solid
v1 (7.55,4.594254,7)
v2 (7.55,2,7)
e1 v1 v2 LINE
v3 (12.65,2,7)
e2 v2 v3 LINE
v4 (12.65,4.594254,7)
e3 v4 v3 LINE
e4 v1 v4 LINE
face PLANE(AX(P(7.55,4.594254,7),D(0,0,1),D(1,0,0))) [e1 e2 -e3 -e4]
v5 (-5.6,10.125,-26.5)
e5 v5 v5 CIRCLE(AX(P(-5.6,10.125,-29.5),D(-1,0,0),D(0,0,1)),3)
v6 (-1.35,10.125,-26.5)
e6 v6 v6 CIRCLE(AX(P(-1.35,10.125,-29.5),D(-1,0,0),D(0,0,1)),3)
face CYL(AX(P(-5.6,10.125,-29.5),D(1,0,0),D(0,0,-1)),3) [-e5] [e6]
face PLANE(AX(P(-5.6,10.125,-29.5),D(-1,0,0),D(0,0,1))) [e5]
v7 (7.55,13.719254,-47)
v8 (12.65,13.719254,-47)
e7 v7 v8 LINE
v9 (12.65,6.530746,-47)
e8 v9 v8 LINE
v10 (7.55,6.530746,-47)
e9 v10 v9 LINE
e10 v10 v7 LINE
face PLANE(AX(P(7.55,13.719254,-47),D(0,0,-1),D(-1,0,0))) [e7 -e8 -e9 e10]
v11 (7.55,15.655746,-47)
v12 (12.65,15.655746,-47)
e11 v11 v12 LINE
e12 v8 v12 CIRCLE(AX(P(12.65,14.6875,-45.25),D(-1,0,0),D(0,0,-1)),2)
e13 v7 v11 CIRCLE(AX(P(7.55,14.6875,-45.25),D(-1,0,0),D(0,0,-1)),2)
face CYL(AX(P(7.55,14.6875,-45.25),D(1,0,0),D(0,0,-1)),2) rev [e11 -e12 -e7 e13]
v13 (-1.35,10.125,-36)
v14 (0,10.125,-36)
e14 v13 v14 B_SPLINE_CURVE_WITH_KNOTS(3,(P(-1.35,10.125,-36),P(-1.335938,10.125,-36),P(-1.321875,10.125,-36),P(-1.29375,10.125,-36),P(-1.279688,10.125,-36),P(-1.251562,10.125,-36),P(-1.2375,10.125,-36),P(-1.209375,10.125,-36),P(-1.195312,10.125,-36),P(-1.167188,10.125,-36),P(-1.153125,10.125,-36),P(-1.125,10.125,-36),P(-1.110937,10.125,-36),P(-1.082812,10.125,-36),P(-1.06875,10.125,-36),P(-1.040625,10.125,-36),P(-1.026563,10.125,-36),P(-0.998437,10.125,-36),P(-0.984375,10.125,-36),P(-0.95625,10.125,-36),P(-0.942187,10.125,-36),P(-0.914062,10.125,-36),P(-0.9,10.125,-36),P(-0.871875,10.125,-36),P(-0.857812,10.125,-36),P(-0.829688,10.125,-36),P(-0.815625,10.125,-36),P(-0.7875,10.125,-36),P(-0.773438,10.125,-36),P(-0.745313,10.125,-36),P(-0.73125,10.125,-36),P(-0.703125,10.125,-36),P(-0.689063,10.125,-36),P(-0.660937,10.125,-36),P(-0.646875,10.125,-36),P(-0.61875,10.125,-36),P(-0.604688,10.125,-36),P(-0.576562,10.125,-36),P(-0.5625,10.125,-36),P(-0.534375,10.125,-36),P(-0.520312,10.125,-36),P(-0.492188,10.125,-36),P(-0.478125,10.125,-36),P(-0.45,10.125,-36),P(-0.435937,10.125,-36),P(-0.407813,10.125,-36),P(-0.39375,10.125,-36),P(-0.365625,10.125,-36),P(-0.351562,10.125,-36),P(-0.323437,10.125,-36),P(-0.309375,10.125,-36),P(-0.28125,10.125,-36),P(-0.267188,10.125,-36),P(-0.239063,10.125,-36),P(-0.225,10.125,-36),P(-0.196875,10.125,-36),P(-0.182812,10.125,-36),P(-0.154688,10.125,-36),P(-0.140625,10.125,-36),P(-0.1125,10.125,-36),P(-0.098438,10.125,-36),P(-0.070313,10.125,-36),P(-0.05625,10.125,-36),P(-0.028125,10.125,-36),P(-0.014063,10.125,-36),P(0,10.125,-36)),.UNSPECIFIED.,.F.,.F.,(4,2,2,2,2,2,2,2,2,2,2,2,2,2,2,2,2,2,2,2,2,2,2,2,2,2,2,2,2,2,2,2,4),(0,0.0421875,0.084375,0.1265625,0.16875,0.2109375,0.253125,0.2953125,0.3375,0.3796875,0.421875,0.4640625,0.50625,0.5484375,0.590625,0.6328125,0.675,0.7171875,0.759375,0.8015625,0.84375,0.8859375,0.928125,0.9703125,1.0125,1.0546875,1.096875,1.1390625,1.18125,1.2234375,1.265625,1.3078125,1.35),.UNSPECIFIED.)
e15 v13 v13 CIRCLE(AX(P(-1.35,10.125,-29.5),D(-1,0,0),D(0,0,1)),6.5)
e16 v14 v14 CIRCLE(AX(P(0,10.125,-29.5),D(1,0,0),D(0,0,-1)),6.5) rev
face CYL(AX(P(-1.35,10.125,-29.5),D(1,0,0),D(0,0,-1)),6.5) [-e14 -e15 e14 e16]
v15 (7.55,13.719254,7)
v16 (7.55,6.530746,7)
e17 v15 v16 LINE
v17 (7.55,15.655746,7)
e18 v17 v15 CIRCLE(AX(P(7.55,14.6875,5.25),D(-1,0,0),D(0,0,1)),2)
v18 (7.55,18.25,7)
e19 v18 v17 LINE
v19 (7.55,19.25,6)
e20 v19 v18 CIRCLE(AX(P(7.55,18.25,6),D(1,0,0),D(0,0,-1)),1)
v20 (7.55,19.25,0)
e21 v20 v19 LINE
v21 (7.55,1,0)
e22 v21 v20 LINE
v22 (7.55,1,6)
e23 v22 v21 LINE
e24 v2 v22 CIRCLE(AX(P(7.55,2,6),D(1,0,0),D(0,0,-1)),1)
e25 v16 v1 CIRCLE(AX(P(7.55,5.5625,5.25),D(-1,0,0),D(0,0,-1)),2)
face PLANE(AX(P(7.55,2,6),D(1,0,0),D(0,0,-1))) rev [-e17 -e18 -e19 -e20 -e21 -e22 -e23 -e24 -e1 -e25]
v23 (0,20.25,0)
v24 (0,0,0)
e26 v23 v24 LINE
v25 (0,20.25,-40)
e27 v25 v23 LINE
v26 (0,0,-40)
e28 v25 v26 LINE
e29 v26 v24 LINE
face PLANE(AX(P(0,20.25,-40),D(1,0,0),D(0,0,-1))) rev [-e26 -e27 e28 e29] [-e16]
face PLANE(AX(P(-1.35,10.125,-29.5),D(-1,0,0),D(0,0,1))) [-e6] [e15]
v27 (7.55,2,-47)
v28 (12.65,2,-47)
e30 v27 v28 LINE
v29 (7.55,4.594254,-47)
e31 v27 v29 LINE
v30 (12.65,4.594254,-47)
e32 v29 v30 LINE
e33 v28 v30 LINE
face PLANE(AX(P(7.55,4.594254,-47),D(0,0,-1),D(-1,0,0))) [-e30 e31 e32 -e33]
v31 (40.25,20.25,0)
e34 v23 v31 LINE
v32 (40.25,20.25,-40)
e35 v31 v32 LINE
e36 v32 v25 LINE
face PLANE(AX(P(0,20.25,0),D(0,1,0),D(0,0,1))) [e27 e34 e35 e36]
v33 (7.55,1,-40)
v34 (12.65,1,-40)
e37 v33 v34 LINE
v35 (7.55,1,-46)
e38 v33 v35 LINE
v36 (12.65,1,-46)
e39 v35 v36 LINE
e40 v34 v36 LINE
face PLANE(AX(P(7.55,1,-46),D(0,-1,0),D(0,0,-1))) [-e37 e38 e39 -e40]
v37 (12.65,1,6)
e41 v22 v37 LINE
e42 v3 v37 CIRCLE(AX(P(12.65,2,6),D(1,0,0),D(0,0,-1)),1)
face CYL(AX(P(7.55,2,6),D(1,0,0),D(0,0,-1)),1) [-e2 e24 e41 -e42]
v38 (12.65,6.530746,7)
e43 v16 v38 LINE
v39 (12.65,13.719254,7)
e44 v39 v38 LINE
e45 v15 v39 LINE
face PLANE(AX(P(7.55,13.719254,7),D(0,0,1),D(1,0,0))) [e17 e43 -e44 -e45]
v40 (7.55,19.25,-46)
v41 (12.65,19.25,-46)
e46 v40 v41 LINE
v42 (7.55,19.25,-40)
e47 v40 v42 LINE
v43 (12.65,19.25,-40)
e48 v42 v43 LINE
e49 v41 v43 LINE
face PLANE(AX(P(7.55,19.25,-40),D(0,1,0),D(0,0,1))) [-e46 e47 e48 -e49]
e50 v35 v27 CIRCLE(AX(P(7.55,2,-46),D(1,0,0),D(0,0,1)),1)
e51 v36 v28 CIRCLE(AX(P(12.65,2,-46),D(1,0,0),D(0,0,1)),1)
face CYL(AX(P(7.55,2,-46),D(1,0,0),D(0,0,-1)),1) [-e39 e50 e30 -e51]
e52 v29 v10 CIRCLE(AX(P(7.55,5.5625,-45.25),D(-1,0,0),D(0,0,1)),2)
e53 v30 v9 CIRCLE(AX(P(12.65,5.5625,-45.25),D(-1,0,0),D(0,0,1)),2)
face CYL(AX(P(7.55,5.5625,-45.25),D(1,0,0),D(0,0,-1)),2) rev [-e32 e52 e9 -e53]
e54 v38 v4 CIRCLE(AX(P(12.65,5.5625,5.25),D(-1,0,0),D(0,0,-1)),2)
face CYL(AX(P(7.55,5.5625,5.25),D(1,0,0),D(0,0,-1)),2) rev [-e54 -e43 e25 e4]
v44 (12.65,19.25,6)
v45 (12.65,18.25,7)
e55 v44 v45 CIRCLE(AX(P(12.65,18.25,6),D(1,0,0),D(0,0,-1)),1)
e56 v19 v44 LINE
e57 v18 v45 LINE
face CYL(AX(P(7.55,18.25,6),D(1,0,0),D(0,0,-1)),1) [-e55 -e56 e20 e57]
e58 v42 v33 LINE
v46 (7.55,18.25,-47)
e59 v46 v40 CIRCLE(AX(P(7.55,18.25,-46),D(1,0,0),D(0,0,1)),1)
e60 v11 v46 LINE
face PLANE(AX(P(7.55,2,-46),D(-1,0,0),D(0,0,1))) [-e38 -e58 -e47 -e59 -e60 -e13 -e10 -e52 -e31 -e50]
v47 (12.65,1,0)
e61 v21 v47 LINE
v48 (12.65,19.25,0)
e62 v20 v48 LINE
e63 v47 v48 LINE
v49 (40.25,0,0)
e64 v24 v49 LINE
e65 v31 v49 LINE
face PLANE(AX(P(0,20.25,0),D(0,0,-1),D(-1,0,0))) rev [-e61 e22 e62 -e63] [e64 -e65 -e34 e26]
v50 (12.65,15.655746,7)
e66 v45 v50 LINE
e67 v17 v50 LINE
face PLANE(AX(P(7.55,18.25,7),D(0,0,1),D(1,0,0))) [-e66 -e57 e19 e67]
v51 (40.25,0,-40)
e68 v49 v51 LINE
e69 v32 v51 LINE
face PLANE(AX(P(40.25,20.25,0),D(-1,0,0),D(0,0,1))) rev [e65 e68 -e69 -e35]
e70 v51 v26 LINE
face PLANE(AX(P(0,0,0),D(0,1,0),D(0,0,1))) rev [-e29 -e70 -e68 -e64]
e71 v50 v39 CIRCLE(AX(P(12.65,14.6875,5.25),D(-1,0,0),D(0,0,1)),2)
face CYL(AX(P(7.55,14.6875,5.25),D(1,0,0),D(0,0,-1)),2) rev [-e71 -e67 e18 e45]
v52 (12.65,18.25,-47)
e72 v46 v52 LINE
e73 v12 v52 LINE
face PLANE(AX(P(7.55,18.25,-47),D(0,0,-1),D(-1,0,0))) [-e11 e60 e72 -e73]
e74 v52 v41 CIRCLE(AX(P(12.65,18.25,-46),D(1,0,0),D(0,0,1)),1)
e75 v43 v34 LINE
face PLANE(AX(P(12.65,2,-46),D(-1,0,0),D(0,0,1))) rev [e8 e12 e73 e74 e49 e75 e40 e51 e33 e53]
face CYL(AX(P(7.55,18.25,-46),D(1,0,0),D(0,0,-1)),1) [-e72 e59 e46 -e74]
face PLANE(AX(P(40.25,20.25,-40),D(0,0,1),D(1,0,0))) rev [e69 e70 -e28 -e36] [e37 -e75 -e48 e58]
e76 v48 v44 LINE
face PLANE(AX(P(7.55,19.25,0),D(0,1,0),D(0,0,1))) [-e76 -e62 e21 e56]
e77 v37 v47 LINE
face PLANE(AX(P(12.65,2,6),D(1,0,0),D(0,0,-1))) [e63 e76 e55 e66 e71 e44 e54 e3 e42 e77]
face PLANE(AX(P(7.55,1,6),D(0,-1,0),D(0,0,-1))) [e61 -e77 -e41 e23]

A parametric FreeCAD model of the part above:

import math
import FreeCAD as App
import Part
import Sketcher

V = App.Vector

doc = App.newDocument("Part")
body = doc.addObject("PartDesign::Body", "Body")

# Sketch on XZ plane
sketch1 = doc.addObject("Sketcher::SketchObject", "Sketch")
body.addObject(sketch1)
sketch1.AttachmentSupport = (doc.XZ_Plane, [""])
sketch1.MapMode = "FlatFace"
sketch1.addGeometry(Part.LineSegment(V(0, -40, 0), V(0, 0, 0)), False)
sketch1.addGeometry(Part.LineSegment(V(0, 0, 0), V(40, 0, 0)), False)
sketch1.addGeometry(Part.LineSegment(V(40, 0, 0), V(40, -40, 0)), False)
sketch1.addGeometry(Part.LineSegment(V(40, -40, 0), V(0, -40, 0)), False)
sketch1.addConstraint(Sketcher.Constraint("Coincident", 0, 2, 1, 1))
sketch1.addConstraint(Sketcher.Constraint("Coincident", 1, 2, 2, 1))
sketch1.addConstraint(Sketcher.Constraint("Coincident", 2, 2, 3, 1))
sketch1.addConstraint(Sketcher.Constraint("Coincident", 3, 2, 0, 1))
sketch1.addConstraint(Sketcher.Constraint("Vertical", 0))
sketch1.addConstraint(Sketcher.Constraint("Horizontal", 1))
sketch1.addConstraint(Sketcher.Constraint("Vertical", 2))
sketch1.addConstraint(Sketcher.Constraint("Horizontal", 3))
sketch1.addConstraint(Sketcher.Constraint("Coincident", 0, 2, -1, 1))
sketch1.addConstraint(Sketcher.Constraint("DistanceY", 0, 1, 0, 2, 40.0))
sketch1.addConstraint(Sketcher.Constraint("DistanceX", 1, 1, 1, 2, 40.25))
pad1 = doc.addObject("PartDesign::Pad", "Pad")
body.addObject(pad1)
pad1.Profile = sketch1
pad1.Length = 20.25
pad1.Reversed = True

# Sketch on YZ plane
sketch2 = doc.addObject("Sketcher::SketchObject", "Sketch001")
body.addObject(sketch2)
sketch2.AttachmentSupport = (doc.YZ_Plane, [""])
sketch2.MapMode = "FlatFace"
sketch2.addGeometry(Part.Circle(V(10, -30, 0), V(0, 0, 1), 6), False)
sketch2.addConstraint(Sketcher.Constraint("Diameter", 0, 13.0))
sketch2.addConstraint(Sketcher.Constraint("DistanceY", 0, 3, -1, 1, 29.5))
sketch2.addConstraint(Sketcher.Constraint("DistanceX", -1, 1, 0, 3, 10.125))
pad2 = doc.addObject("PartDesign::Pad", "Pad001")
body.addObject(pad2)
pad2.Profile = sketch2
pad2.Length = 1.35
pad2.Reversed = True

# Sketch on YZ plane
sketch3 = doc.addObject("Sketcher::SketchObject", "Sketch002")
body.addObject(sketch3)
sketch3.AttachmentSupport = (doc.YZ_Plane, [""])
sketch3.MapMode = "FlatFace"
sketch3.AttachmentOffset = App.Placement(V(0, 0, -1.35), App.Rotation())
sketch3.addGeometry(Part.Circle(V(10.1, -29.5, 0), V(0, 0, 1), 3), False)
sketch3.addConstraint(Sketcher.Constraint("Diameter", 0, 6.0))
sketch3.addConstraint(Sketcher.Constraint("DistanceY", 0, 3, -1, 1, 29.5))
sketch3.addConstraint(Sketcher.Constraint("DistanceX", -1, 1, 0, 3, 10.125))
pad3 = doc.addObject("PartDesign::Pad", "Pad002")
body.addObject(pad3)
pad3.Profile = sketch3
pad3.Length = 4.25
pad3.Reversed = True

# Sketch on YZ plane
sketch4 = doc.addObject("Sketcher::SketchObject", "Sketch003")
body.addObject(sketch4)
sketch4.AttachmentSupport = (doc.YZ_Plane, [""])
sketch4.MapMode = "FlatFace"
sketch4.AttachmentOffset = App.Placement(V(0, 0, 12.65), App.Rotation())
sketch4.addGeometry(Part.LineSegment(V(19.2, -46, 0), V(19.2, -40, 0)), False)
sketch4.addGeometry(Part.LineSegment(V(19.2, -40, 0), V(1, -40, 0)), False)
sketch4.addGeometry(Part.LineSegment(V(1, -40, 0), V(1, -46, 0)), False)
sketch4.addGeometry(Part.ArcOfCircle(Part.Circle(V(2, -46, 0), V(0, 0, 1), 1), math.radians(-180), math.radians(-90)), False)
sketch4.addGeometry(Part.LineSegment(V(2, -47, 0), V(4.6, -47, 0)), False)
sketch4.addGeometry(Part.ArcOfCircle(Part.Circle(V(5.6, -45.2, 0), V(0, 0, 1), 2), math.radians(-61), math.radians(241)), False)
sketch4.addGeometry(Part.LineSegment(V(6.5, -47, 0), V(13.7, -47, 0)), False)
sketch4.addGeometry(Part.ArcOfCircle(Part.Circle(V(14.7, -45.2, 0), V(0, 0, 1), 2), math.radians(-61), math.radians(241)), False)
sketch4.addGeometry(Part.LineSegment(V(15.7, -47, 0), V(18.2, -47, 0)), False)
sketch4.addGeometry(Part.ArcOfCircle(Part.Circle(V(18.2, -46, 0), V(0, 0, 1), 1), math.radians(-90), math.radians(0)), False)
sketch4.addGeometry(Part.LineSegment(V(19.2, 0, 0), V(19.2, 6, 0)), False)
sketch4.addGeometry(Part.ArcOfCircle(Part.Circle(V(18.2, 6, 0), V(0, 0, 1), 1), math.radians(0), math.radians(90)), False)
sketch4.addGeometry(Part.LineSegment(V(18.2, 7, 0), V(15.7, 7, 0)), False)
sketch4.addGeometry(Part.ArcOfCircle(Part.Circle(V(14.7, 5.2, 0), V(0, 0, 1), 2), math.radians(119), math.radians(421)), False)
sketch4.addGeometry(Part.LineSegment(V(13.7, 7, 0), V(6.5, 7, 0)), False)
sketch4.addGeometry(Part.ArcOfCircle(Part.Circle(V(5.6, 5.2, 0), V(0, 0, 1), 2), math.radians(119), math.radians(421)), False)
sketch4.addGeometry(Part.LineSegment(V(4.6, 7, 0), V(2, 7, 0)), False)
sketch4.addGeometry(Part.ArcOfCircle(Part.Circle(V(2, 6, 0), V(0, 0, 1), 1), math.radians(90), math.radians(180)), False)
sketch4.addGeometry(Part.LineSegment(V(1, 6, 0), V(1, 0, 0)), False)
sketch4.addGeometry(Part.LineSegment(V(1, 0, 0), V(19.2, 0, 0)), False)
sketch4.addConstraint(Sketcher.Constraint("Coincident", 0, 2, 1, 1))
sketch4.addConstraint(Sketcher.Constraint("Coincident", 1, 2, 2, 1))
sketch4.addConstraint(Sketcher.Constraint("Tangent", 2, 2, 3, 1))
sketch4.addConstraint(Sketcher.Constraint("Tangent", 3, 2, 4, 1))
sketch4.addConstraint(Sketcher.Constraint("Coincident", 4, 2, 5, 2))
sketch4.addConstraint(Sketcher.Constraint("Coincident", 5, 1, 6, 1))
sketch4.addConstraint(Sketcher.Constraint("Coincident", 6, 2, 7, 2))
sketch4.addConstraint(Sketcher.Constraint("Coincident", 7, 1, 8, 1))
sketch4.addConstraint(Sketcher.Constraint("Tangent", 8, 2, 9, 1))
sketch4.addConstraint(Sketcher.Constraint("Tangent", 9, 2, 0, 1))
sketch4.addConstraint(Sketcher.Constraint("Tangent", 10, 2, 11, 1))
sketch4.addConstraint(Sketcher.Constraint("Tangent", 11, 2, 12, 1))
sketch4.addConstraint(Sketcher.Constraint("Coincident", 12, 2, 13, 2))
sketch4.addConstraint(Sketcher.Constraint("Coincident", 13, 1, 14, 1))
sketch4.addConstraint(Sketcher.Constraint("Coincident", 14, 2, 15, 2))
sketch4.addConstraint(Sketcher.Constraint("Coincident", 15, 1, 16, 1))
sketch4.addConstraint(Sketcher.Constraint("Tangent", 16, 2, 17, 1))
sketch4.addConstraint(Sketcher.Constraint("Tangent", 17, 2, 18, 1))
sketch4.addConstraint(Sketcher.Constraint("Coincident", 18, 2, 19, 1))
sketch4.addConstraint(Sketcher.Constraint("Coincident", 19, 2, 10, 1))
sketch4.addConstraint(Sketcher.Constraint("Vertical", 0))
sketch4.addConstraint(Sketcher.Constraint("Horizontal", 1))
sketch4.addConstraint(Sketcher.Constraint("Vertical", 2))
sketch4.addConstraint(Sketcher.Constraint("Horizontal", 4))
sketch4.addConstraint(Sketcher.Constraint("Horizontal", 6))
sketch4.addConstraint(Sketcher.Constraint("Horizontal", 8))
sketch4.addConstraint(Sketcher.Constraint("Vertical", 10))
sketch4.addConstraint(Sketcher.Constraint("Horizontal", 12))
sketch4.addConstraint(Sketcher.Constraint("Horizontal", 14))
sketch4.addConstraint(Sketcher.Constraint("Horizontal", 16))
sketch4.addConstraint(Sketcher.Constraint("Vertical", 18))
sketch4.addConstraint(Sketcher.Constraint("Horizontal", 19))
sketch4.addConstraint(Sketcher.Constraint("Equal", 5, 7))
sketch4.addConstraint(Sketcher.Constraint("Equal", 3, 9))
sketch4.addConstraint(Sketcher.Constraint("Equal", 9, 11))
sketch4.addConstraint(Sketcher.Constraint("Equal", 7, 13))
sketch4.addConstraint(Sketcher.Constraint("Equal", 13, 15))
sketch4.addConstraint(Sketcher.Constraint("Equal", 11, 17))
sketch4.addConstraint(Sketcher.Constraint("PointOnObject", 18, 2, -1))
sketch4.addConstraint(Sketcher.Constraint("Horizontal", 5, 3, 7, 3))
sketch4.addConstraint(Sketcher.Constraint("Horizontal", 3, 3, 9, 3))
sketch4.addConstraint(Sketcher.Constraint("Horizontal", 13, 3, 15, 3))
sketch4.addConstraint(Sketcher.Constraint("Horizontal", 11, 3, 17, 3))
sketch4.addConstraint(Sketcher.Constraint("Horizontal", 4, 2, 5, 1))
sketch4.addConstraint(Sketcher.Constraint("Horizontal", 12, 2, 13, 1))
sketch4.addConstraint(Sketcher.Constraint("Vertical", 9, 3, 11, 3))
sketch4.addConstraint(Sketcher.Constraint("Vertical", 7, 3, 13, 3))
sketch4.addConstraint(Sketcher.Constraint("Vertical", 5, 3, 15, 3))
sketch4.addConstraint(Sketcher.Constraint("Vertical", 3, 3, 17, 3))
sketch4.addConstraint(Sketcher.Constraint("Vertical", 7, 1, 12, 2))
sketch4.addConstraint(Sketcher.Constraint("Equal", 4, 8))
sketch4.addConstraint(Sketcher.Constraint("Equal", 2, 10))
sketch4.addConstraint(Sketcher.Constraint("Radius", 3, 1.0))
sketch4.addConstraint(Sketcher.Constraint("Radius", 5, 2.0))
sketch4.addConstraint(Sketcher.Constraint("DistanceY", 0, 1, 0, 2, 6.0))
sketch4.addConstraint(Sketcher.Constraint("DistanceX", -1, 1, 3, 3, 2.0))
sketch4.addConstraint(Sketcher.Constraint("DistanceY", 3, 3, -1, 1, 46.0))
sketch4.addConstraint(Sketcher.Constraint("DistanceX", 1, 2, 1, 1, 18.25))
sketch4.addConstraint(Sketcher.Constraint("DistanceY", 7, 3, 13, 3, 50.5))
sketch4.addConstraint(Sketcher.Constraint("DistanceX", 5, 3, 7, 3, 9.125))
pad4 = doc.addObject("PartDesign::Pad", "Pad003")
body.addObject(pad4)
pad4.Profile = sketch4
pad4.Length = 5.1
pad4.Reversed = True

doc.recompute()
